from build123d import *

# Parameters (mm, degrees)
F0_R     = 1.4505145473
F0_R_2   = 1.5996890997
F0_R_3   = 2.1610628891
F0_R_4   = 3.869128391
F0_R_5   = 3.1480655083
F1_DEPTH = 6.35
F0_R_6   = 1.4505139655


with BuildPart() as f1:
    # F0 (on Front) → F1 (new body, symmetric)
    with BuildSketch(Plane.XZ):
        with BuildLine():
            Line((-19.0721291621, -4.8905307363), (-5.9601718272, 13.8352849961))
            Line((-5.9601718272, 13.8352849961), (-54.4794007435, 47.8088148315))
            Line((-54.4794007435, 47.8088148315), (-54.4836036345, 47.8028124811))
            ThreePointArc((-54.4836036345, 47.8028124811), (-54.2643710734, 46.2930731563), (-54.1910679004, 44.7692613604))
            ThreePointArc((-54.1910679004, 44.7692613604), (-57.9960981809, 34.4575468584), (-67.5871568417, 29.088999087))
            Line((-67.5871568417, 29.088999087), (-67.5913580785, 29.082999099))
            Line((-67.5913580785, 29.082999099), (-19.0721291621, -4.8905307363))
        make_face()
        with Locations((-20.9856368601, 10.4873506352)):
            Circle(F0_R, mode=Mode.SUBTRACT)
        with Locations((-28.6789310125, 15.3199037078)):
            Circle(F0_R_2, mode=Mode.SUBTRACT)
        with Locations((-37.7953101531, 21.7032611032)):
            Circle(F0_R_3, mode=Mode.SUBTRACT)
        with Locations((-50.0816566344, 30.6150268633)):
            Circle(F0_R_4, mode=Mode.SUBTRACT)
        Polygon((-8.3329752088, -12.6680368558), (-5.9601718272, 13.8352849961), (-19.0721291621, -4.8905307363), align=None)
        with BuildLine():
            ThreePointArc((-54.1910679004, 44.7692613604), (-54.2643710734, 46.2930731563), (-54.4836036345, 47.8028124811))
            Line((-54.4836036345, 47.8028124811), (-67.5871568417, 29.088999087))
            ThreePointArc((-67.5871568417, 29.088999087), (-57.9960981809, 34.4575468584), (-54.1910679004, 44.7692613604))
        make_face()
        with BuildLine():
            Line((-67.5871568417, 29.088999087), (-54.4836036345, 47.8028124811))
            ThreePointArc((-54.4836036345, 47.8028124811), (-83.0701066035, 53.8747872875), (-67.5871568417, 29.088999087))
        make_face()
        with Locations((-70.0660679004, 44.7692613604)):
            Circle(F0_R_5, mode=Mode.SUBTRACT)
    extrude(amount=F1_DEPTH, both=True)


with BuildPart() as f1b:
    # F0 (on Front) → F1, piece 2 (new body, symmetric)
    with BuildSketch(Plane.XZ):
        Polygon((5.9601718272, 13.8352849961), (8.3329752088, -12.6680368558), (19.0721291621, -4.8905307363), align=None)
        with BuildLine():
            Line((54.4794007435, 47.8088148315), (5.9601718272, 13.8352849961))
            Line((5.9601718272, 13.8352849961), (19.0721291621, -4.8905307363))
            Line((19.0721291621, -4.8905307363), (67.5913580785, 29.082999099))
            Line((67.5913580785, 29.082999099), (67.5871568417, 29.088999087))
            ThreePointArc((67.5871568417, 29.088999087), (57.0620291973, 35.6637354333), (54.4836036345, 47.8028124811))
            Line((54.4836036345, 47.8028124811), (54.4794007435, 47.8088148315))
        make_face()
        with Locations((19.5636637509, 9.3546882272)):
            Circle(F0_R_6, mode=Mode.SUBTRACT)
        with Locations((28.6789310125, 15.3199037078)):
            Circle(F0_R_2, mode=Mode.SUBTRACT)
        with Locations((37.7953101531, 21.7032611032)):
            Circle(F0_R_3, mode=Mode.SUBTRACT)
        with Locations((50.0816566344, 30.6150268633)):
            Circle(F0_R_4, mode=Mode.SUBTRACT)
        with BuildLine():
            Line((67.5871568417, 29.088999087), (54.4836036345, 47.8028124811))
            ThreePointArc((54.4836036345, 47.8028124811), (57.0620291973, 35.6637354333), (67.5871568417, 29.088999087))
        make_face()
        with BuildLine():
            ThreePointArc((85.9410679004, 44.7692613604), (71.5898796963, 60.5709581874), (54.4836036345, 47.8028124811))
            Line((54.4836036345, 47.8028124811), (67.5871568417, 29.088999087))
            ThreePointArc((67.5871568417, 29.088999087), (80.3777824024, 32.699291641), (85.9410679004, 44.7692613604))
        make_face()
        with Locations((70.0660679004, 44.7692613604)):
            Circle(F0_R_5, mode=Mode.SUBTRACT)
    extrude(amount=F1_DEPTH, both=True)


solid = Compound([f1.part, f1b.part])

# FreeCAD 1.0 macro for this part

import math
import FreeCAD as App
import Part
import Sketcher
from FreeCAD import Vector
Q = App.Units.Quantity

doc = App.newDocument("Part")
body = doc.addObject("PartDesign::Body", "Body")

# Sketch on XZ plane
sketch1 = body.newObject("Sketcher::SketchObject", "Sketch")
sketch1.AttachmentSupport = (doc.getObject("XZ_Plane"), [""])
sketch1.MapMode = "FlatFace"
sketch1.addGeometry([
    Part.LineSegment(Vector(-67.591, 29.083, 0), Vector(-19.072, -4.891, 0)),  # 0
    Part.LineSegment(Vector(-19.072, -4.891, 0), Vector(-8.333, -12.668, 0)),  # 1
    Part.LineSegment(Vector(-8.333, -12.668, 0), Vector(-5.96, 13.835, 0)),  # 2
    Part.LineSegment(Vector(-5.96, 13.835, 0), Vector(-54.479, 47.809, 0)),  # 3
    Part.LineSegment(Vector(-54.479, 47.809, 0), Vector(-54.484, 47.803, 0)),  # 4
    Part.ArcOfCircle(Part.Circle(Vector(-70.066, 44.769, 0), Vector(0, 0, 1), 15.875), math.radians(11), math.radians(279)),  # 5
    Part.LineSegment(Vector(-67.587, 29.089, 0), Vector(-67.591, 29.083, 0)),  # 6
    Part.Circle(Vector(-20.986, 10.487, 0), Vector(0, 0, 1), 1.451),  # 7
    Part.Circle(Vector(-28.679, 15.32, 0), Vector(0, 0, 1), 1.6),  # 8
    Part.Circle(Vector(-37.795, 21.703, 0), Vector(0, 0, 1), 2.161),  # 9
    Part.Circle(Vector(-50.082, 30.615, 0), Vector(0, 0, 1), 3.869),  # 10
    Part.Circle(Vector(-70.066, 44.769, 0), Vector(0, 0, 1), 3.148),  # 11
], False)
sketch1.addConstraint([
    Sketcher.Constraint("Coincident", 0, 2, 1, 1),
    Sketcher.Constraint("Coincident", 1, 2, 2, 1),
    Sketcher.Constraint("Coincident", 2, 2, 3, 1),
    Sketcher.Constraint("Coincident", 3, 2, 4, 1),
    Sketcher.Constraint("Coincident", 4, 2, 5, 1),
    Sketcher.Constraint("Coincident", 5, 2, 6, 1),
    Sketcher.Constraint("Coincident", 6, 2, 0, 1),
    Sketcher.Constraint("Coincident", 11, 3, 5, 3),
    Sketcher.Constraint("Parallel", 0, 3),
    Sketcher.Constraint("Perpendicular", 3, 4),
    Sketcher.Constraint("Parallel", 4, 6),
    Sketcher.Constraint("Equal", 0, 3),
    Sketcher.Constraint("Angle", 0, Q("-35 deg")),
    Sketcher.Constraint("Radius", 5, Q("0.625 in")),
    Sketcher.Constraint("Diameter", 7, Q("2.901029 mm")),
    Sketcher.Constraint("Diameter", 8, Q("3.199378 mm")),
    Sketcher.Constraint("Diameter", 11, Q("6.296131 mm")),
    Sketcher.Constraint("DistanceY", -1, 1, 6, 2, Q("1.145 in")),
    Sketcher.Constraint("Diameter", 9, Q("4.322126 mm")),
    Sketcher.Constraint("Diameter", 10, Q("7.738257 mm")),
    Sketcher.Constraint("DistanceX", 3, 2, -1, 1, Q("54.479401 mm")),
    Sketcher.Constraint("DistanceY", -1, 1, 5, 2, Q("29.088999 mm")),
    Sketcher.Constraint("DistanceY", 9, 3, 5, 3, Q("23.066 mm")),
    Sketcher.Constraint("DistanceX", 8, 3, 0, 2, Q("9.606802 mm")),
    Sketcher.Constraint("DistanceX", 5, 2, 10, 3, Q("17.5055 mm")),
    Sketcher.Constraint("Distance", 0, Q("59.231042 mm")),
    Sketcher.Constraint("DistanceY", -1, 1, 5, 3, Q("44.769261 mm")),
    Sketcher.Constraint("DistanceY", -1, 1, 7, 3, Q("10.487351 mm")),
    Sketcher.Constraint("DistanceX", 8, 3, -1, 1, Q("28.678931 mm")),
    Sketcher.Constraint("DistanceX", 9, 3, -1, 1, Q("37.79531 mm")),
    Sketcher.Constraint("DistanceX", 5, 3, 7, 3, Q("49.080431 mm")),
    Sketcher.Constraint("DistanceX", 7, 3, 1, 2, Q("12.652662 mm")),
    Sketcher.Constraint("DistanceY", 1, 2, 8, 3, Q("27.987941 mm")),
    Sketcher.Constraint("DistanceY", 2, 2, 8, 3, Q("1.484619 mm")),
    Sketcher.Constraint("DistanceY", 5, 3, 4, 2, Q("3.033551 mm")),
    Sketcher.Constraint("DistanceY", -1, 1, 10, 3, Q("30.615027 mm")),
])
pad1 = body.newObject("PartDesign::Pad", "Pad")
pad1.Profile = sketch1
pad1.Length = Q("0.5 in")
pad1.Midplane = True
body2 = doc.addObject("PartDesign::Body", "Body001")

# Sketch on XZ plane
sketch2 = body2.newObject("Sketcher::SketchObject", "Sketch001")
sketch2.AttachmentSupport = (doc.getObject("XZ_Plane001"), [""])
sketch2.MapMode = "FlatFace"
sketch2.addGeometry([
    Part.LineSegment(Vector(5.96, 13.835, 0), Vector(8.333, -12.668, 0)),  # 0
    Part.LineSegment(Vector(8.333, -12.668, 0), Vector(19.072, -4.891, 0)),  # 1
    Part.LineSegment(Vector(19.072, -4.891, 0), Vector(67.591, 29.083, 0)),  # 2
    Part.LineSegment(Vector(67.591, 29.083, 0), Vector(67.587, 29.089, 0)),  # 3
    Part.ArcOfCircle(Part.Circle(Vector(70.066, 44.769, 0), Vector(0, 0, 1), 15.875), math.radians(-99), math.radians(0)),  # 4
    Part.ArcOfCircle(Part.Circle(Vector(70.066, 44.769, 0), Vector(0, 0, 1), 15.875), math.radians(0), math.radians(169)),  # 5
    Part.LineSegment(Vector(54.484, 47.803, 0), Vector(54.479, 47.809, 0)),  # 6
    Part.LineSegment(Vector(54.479, 47.809, 0), Vector(5.96, 13.835, 0)),  # 7
    Part.Circle(Vector(19.564, 9.355, 0), Vector(0, 0, 1), 1.451),  # 8
    Part.Circle(Vector(28.679, 15.32, 0), Vector(0, 0, 1), 1.6),  # 9
    Part.Circle(Vector(37.795, 21.703, 0), Vector(0, 0, 1), 2.161),  # 10
    Part.Circle(Vector(50.082, 30.615, 0), Vector(0, 0, 1), 3.869),  # 11
    Part.Circle(Vector(70.066, 44.769, 0), Vector(0, 0, 1), 3.148),  # 12
], False)
sketch2.addConstraint([
    Sketcher.Constraint("Coincident", 0, 2, 1, 1),
    Sketcher.Constraint("Coincident", 1, 2, 2, 1),
    Sketcher.Constraint("Coincident", 2, 2, 3, 1),
    Sketcher.Constraint("Coincident", 3, 2, 4, 1),
    Sketcher.Constraint("Tangent", 4, 2, 5, 1),
    Sketcher.Constraint("Coincident", 5, 2, 6, 1),
    Sketcher.Constraint("Coincident", 6, 2, 7, 1),
    Sketcher.Constraint("Coincident", 7, 2, 0, 1),
    Sketcher.Constraint("Coincident", 12, 3, 4, 3),
    Sketcher.Constraint("Equal", 4, 5),
    Sketcher.Constraint("Perpendicular", 2, 3),
    Sketcher.Constraint("Parallel", 3, 6),
    Sketcher.Constraint("Parallel", 2, 7),
    Sketcher.Constraint("Horizontal", 12, 3, 4, 2),
    Sketcher.Constraint("Equal", 2, 7),
    Sketcher.Constraint("Angle", 2, Q("35 deg")),
    Sketcher.Constraint("Radius", 4, Q("0.625 in")),
    Sketcher.Constraint("Diameter", 9, Q("3.199378 mm")),
    Sketcher.Constraint("Diameter", 12, Q("6.296131 mm")),
    Sketcher.Constraint("DistanceY", -1, 1, 2, 2, Q("1.145 in")),
    Sketcher.Constraint("Diameter", 8, Q("2.901028 mm")),
    Sketcher.Constraint("Diameter", 10, Q("4.322126 mm")),
    Sketcher.Constraint("Diameter", 11, Q("7.738257 mm")),
    Sketcher.Constraint("DistanceY", -1, 1, 3, 2, Q("29.088999 mm")),
    Sketcher.Constraint("DistanceX", -1, 1, 6, 2, Q("54.479401 mm")),
    Sketcher.Constraint("DistanceY", 10, 3, 5, 3, Q("23.066 mm")),
    Sketcher.Constraint("DistanceY", 0, 2, 5, 3, Q("57.437298 mm")),
    Sketcher.Constraint("DistanceX", 1, 2, 9, 3, Q("9.606802 mm")),
    Sketcher.Constraint("DistanceX", 11, 3, 2, 2, Q("17.509701 mm")),
    Sketcher.Constraint("Distance", 2, Q("59.231042 mm")),
    Sketcher.Constraint("DistanceY", -1, 1, 4, 3, Q("44.769261 mm")),
    Sketcher.Constraint("DistanceY", -1, 1, 8, 3, Q("9.354688 mm")),
    Sketcher.Constraint("DistanceX", -1, 1, 9, 3, Q("28.678931 mm")),
    Sketcher.Constraint("DistanceX", -1, 1, 10, 3, Q("37.79531 mm")),
    Sketcher.Constraint("DistanceY", 8, 3, 11, 3, Q("21.260339 mm")),
    Sketcher.Constraint("DistanceX", 0, 2, 8, 3, Q("11.230689 mm")),
    Sketcher.Constraint("DistanceY", 0, 2, 9, 3, Q("27.987941 mm")),
    Sketcher.Constraint("DistanceX", 0, 2, 11, 3, Q("41.748681 mm")),
    Sketcher.Constraint("DistanceY", 4, 3, 5, 2, Q("3.033551 mm")),
])
pad2 = body2.newObject("PartDesign::Pad", "Pad001")
pad2.Profile = sketch2
pad2.Length = Q("0.5 in")
pad2.Midplane = True

doc.recompute()
